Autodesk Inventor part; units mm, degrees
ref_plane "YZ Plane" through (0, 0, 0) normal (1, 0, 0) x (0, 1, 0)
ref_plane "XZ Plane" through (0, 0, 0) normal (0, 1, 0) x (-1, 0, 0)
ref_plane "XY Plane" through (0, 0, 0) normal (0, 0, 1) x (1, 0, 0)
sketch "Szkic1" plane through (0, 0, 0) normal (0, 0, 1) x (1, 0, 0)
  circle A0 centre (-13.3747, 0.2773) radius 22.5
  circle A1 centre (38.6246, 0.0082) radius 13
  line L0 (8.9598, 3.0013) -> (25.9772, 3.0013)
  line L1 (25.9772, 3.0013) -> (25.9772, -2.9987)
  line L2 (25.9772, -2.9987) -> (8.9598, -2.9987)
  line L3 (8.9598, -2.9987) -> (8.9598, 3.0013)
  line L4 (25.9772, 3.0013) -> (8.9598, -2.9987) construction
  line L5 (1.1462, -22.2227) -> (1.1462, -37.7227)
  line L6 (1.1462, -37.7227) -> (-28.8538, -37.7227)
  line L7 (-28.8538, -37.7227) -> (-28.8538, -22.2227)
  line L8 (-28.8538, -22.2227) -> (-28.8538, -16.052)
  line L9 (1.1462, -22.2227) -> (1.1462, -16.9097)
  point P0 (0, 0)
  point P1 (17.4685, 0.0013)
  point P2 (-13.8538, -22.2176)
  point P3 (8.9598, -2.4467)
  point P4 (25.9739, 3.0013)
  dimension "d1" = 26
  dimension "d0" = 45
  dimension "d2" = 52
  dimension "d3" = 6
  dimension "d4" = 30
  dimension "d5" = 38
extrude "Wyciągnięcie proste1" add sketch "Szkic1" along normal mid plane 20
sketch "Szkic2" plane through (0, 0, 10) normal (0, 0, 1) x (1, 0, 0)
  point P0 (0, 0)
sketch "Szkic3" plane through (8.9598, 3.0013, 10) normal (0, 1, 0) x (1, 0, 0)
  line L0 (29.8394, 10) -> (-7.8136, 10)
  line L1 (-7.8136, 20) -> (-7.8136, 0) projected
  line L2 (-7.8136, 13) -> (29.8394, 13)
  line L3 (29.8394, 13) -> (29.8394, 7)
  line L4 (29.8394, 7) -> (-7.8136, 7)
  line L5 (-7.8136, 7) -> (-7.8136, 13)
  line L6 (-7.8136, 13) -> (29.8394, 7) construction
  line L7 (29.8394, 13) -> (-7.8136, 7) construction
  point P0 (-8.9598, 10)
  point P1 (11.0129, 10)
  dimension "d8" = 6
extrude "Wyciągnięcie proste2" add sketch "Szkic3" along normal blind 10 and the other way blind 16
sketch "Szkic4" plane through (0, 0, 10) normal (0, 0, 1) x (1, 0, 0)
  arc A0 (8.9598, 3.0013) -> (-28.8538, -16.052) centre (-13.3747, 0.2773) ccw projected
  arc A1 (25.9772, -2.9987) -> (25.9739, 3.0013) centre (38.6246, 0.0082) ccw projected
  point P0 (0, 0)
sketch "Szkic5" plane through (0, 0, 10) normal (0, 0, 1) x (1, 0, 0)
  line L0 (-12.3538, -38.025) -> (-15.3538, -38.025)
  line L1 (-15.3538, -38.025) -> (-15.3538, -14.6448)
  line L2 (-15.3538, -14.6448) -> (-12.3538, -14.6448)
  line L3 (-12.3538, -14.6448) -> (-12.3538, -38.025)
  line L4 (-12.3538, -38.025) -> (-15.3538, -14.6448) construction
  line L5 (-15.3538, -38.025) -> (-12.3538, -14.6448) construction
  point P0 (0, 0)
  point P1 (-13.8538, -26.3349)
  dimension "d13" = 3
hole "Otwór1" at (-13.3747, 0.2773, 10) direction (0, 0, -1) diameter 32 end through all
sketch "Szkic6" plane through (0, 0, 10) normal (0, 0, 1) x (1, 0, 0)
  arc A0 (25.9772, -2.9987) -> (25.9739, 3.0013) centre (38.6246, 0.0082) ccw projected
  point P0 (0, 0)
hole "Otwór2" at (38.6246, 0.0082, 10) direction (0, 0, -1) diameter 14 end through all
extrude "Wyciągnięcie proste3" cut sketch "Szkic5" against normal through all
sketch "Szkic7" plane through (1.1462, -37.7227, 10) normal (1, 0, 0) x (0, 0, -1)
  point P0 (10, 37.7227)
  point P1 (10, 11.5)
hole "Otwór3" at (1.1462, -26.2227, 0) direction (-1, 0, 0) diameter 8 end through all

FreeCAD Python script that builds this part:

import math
import FreeCAD as App
import Part
import Sketcher
from FreeCAD import Vector
Q = App.Units.Quantity


def add_polygon(sketch, points):
    """Adds a closed chain of lines whose ends are joined by coincident constraints."""
    first, n = sketch.GeometryCount, len(points)
    for a, b in zip(points, points[1:] + points[:1]):
        sketch.addGeometry(Part.LineSegment(App.Vector(*a, 0), App.Vector(*b, 0)), False)
    for i in range(n):
        sketch.addConstraint(Sketcher.Constraint("Coincident", first + i, 2, first + (i + 1) % n, 1))

doc = App.newDocument("Part")
body = doc.addObject("PartDesign::Body", "Body")

sketch1 = doc.addObject("Sketcher::SketchObject", "Sketch")
body.addObject(sketch1)
sketch1.AttachmentSupport = (doc.XY_Plane, [""])
sketch1.MapMode = "FlatFace"
sketch1.addGeometry(Part.LineSegment(Vector(9, -2.4, 0), Vector(9, -3, 0)), False)
sketch1.addGeometry(Part.LineSegment(Vector(9, -3, 0), Vector(26, -3, 0)), False)
sketch1.addGeometry(Part.ArcOfCircle(Part.Circle(Vector(38.6, 0, 0), Vector(0, 0, 1), 13), math.radians(-167), math.radians(167)), False)
sketch1.addGeometry(Part.LineSegment(Vector(26, 3, 0), Vector(9, 3, 0)), False)
sketch1.addGeometry(Part.ArcOfCircle(Part.Circle(Vector(-13.4, 0.3, 0), Vector(0, 0, 1), 22.5), math.radians(7), math.radians(227)), False)
sketch1.addGeometry(Part.LineSegment(Vector(-28.9, -16.1, 0), Vector(-28.9, -37.7, 0)), False)
sketch1.addGeometry(Part.LineSegment(Vector(-28.9, -37.7, 0), Vector(1.1, -37.7, 0)), False)
sketch1.addGeometry(Part.LineSegment(Vector(1.1, -37.7, 0), Vector(1.1, -16.9, 0)), False)
sketch1.addGeometry(Part.ArcOfCircle(Part.Circle(Vector(-13.4, 0.3, 0), Vector(0, 0, 1), 22.5), math.radians(-50), math.radians(-7)), False)
sketch1.addConstraint(Sketcher.Constraint("Coincident", 0, 2, 1, 1))
sketch1.addConstraint(Sketcher.Constraint("Coincident", 1, 2, 2, 1))
sketch1.addConstraint(Sketcher.Constraint("Coincident", 2, 2, 3, 1))
sketch1.addConstraint(Sketcher.Constraint("Coincident", 3, 2, 4, 1))
sketch1.addConstraint(Sketcher.Constraint("Coincident", 4, 2, 5, 1))
sketch1.addConstraint(Sketcher.Constraint("Coincident", 5, 2, 6, 1))
sketch1.addConstraint(Sketcher.Constraint("Coincident", 6, 2, 7, 1))
sketch1.addConstraint(Sketcher.Constraint("Coincident", 7, 2, 8, 1))
sketch1.addConstraint(Sketcher.Constraint("Coincident", 8, 2, 0, 1))
sketch1.addConstraint(Sketcher.Constraint("Vertical", 0))
sketch1.addConstraint(Sketcher.Constraint("Horizontal", 1))
sketch1.addConstraint(Sketcher.Constraint("Horizontal", 3))
sketch1.addConstraint(Sketcher.Constraint("Vertical", 5))
sketch1.addConstraint(Sketcher.Constraint("Horizontal", 6))
sketch1.addConstraint(Sketcher.Constraint("Vertical", 7))
sketch1.addConstraint(Sketcher.Constraint("Coincident", 8, 3, 4, 3))
sketch1.addConstraint(Sketcher.Constraint("Equal", 4, 8))
sketch1.addConstraint(Sketcher.Constraint("Vertical", 0, 2, 3, 2))
sketch1.addConstraint(Sketcher.Constraint("Radius", 2, Q("13 mm")))
sketch1.addConstraint(Sketcher.Constraint("Radius", 4, Q("22.5 mm")))
sketch1.addConstraint(Sketcher.Constraint("DistanceX", 6, 1, 6, 2, Q("30 mm")))
sketch1.addConstraint(Sketcher.Constraint("DistanceY", 1, 2, 2, 2, Q("6 mm")))
sketch1.addConstraint(Sketcher.Constraint("DistanceY", 5, 2, 4, 3, Q("38 mm")))
sketch1.addConstraint(Sketcher.Constraint("DistanceX", 3, 2, 3, 1, Q("17.014 mm")))
sketch1.addConstraint(Sketcher.Constraint("DistanceY", 0, 2, 0, 1, Q("0.552 mm")))
sketch1.addConstraint(Sketcher.Constraint("DistanceY", 7, 1, 7, 2, Q("20.813 mm")))
sketch1.addConstraint(Sketcher.Constraint("DistanceX", 1, 1, 1, 2, Q("17.0174 mm")))
sketch1.addConstraint(Sketcher.Constraint("DistanceY", 4, 2, -1, 1, Q("16.052 mm")))
sketch1.addConstraint(Sketcher.Constraint("DistanceX", -1, 1, 2, 3, Q("38.6246 mm")))
pad1 = doc.addObject("PartDesign::Pad", "Pad")
body.addObject(pad1)
pad1.Profile = sketch1
pad1.Length = 20
pad1.Midplane = True

sketch2 = doc.addObject("Sketcher::SketchObject", "Sketch001")
body.addObject(sketch2)
sketch2.AttachmentSupport = (doc.XZ_Plane, [""])
sketch2.MapMode = "FlatFace"
sketch2.AttachmentOffset = App.Placement(Vector(0, 0, -3.0013), App.Rotation())
add_polygon(sketch2, [(39, 3), (39, -3), (1, -3), (1, 3)])
sketch2.addConstraint(Sketcher.Constraint("Vertical", 0))
sketch2.addConstraint(Sketcher.Constraint("Horizontal", 1))
sketch2.addConstraint(Sketcher.Constraint("Vertical", 2))
sketch2.addConstraint(Sketcher.Constraint("Horizontal", 3))
sketch2.addConstraint(Sketcher.Constraint("DistanceY", 0, 2, 0, 1, Q("6 mm")))
sketch2.addConstraint(Sketcher.Constraint("DistanceY", 0, 2, -1, 1, Q("3 mm")))
sketch2.addConstraint(Sketcher.Constraint("DistanceX", 1, 2, 1, 1, Q("37.653 mm")))
sketch2.addConstraint(Sketcher.Constraint("DistanceX", -1, 1, 0, 2, Q("38.7992 mm")))
pad2 = doc.addObject("PartDesign::Pad", "Pad001")
body.addObject(pad2)
pad2.Profile = sketch2
pad2.Type = "TwoLengths"
pad2.Length = 10
pad2.Length2 = 16
pad2.Reversed = True

sketch3 = doc.addObject("Sketcher::SketchObject", "Sketch002")
body.addObject(sketch3)
sketch3.AttachmentSupport = (doc.XY_Plane, [""])
sketch3.MapMode = "FlatFace"
sketch3.AttachmentOffset = App.Placement(Vector(0, 0, 10), App.Rotation())
sketch3.addGeometry(Part.Circle(Vector(-13, 0, 0), Vector(0, 0, 1), 16), False)
sketch3.addConstraint(Sketcher.Constraint("Diameter", 0, Q("32 mm")))
sketch3.addConstraint(Sketcher.Constraint("DistanceX", 0, 3, -1, 1, Q("13.3747 mm")))
sketch3.addConstraint(Sketcher.Constraint("DistanceY", -1, 1, 0, 3, Q("0.2773 mm")))
doc.recompute()
hole = doc.addObject("PartDesign::Hole", "Hole")
body.addObject(hole)
hole.Profile = sketch3
hole.ThreadType = "None"
hole.Diameter = 32
hole.DepthType = "ThroughAll"

sketch4 = doc.addObject("Sketcher::SketchObject", "Sketch003")
body.addObject(sketch4)
sketch4.AttachmentSupport = (doc.XY_Plane, [""])
sketch4.MapMode = "FlatFace"
sketch4.AttachmentOffset = App.Placement(Vector(0, 0, 10), App.Rotation())
sketch4.addGeometry(Part.Circle(Vector(39, 0, 0), Vector(0, 0, 1), 7), False)
sketch4.addConstraint(Sketcher.Constraint("Diameter", 0, Q("14 mm")))
sketch4.addConstraint(Sketcher.Constraint("DistanceX", -1, 1, 0, 3, Q("38.6246 mm")))
sketch4.addConstraint(Sketcher.Constraint("DistanceY", -1, 1, 0, 3, Q("0.0082 mm")))
doc.recompute()
hole2 = doc.addObject("PartDesign::Hole", "Hole001")
body.addObject(hole2)
hole2.Profile = sketch4
hole2.ThreadType = "None"
hole2.Diameter = 14
hole2.DepthType = "ThroughAll"

sketch5 = doc.addObject("Sketcher::SketchObject", "Sketch004")
body.addObject(sketch5)
sketch5.AttachmentSupport = (doc.XY_Plane, [""])
sketch5.MapMode = "FlatFace"
sketch5.AttachmentOffset = App.Placement(Vector(0, 0, 10), App.Rotation())
add_polygon(sketch5, [(-15.4, -38), (-12.4, -38), (-12.4, -14.6), (-15.4, -14.6)])
sketch5.addConstraint(Sketcher.Constraint("Horizontal", 0))
sketch5.addConstraint(Sketcher.Constraint("Vertical", 1))
sketch5.addConstraint(Sketcher.Constraint("Horizontal", 2))
sketch5.addConstraint(Sketcher.Constraint("Vertical", 3))
sketch5.addConstraint(Sketcher.Constraint("DistanceX", 0, 1, 0, 2, Q("3 mm")))
sketch5.addConstraint(Sketcher.Constraint("DistanceY", 1, 1, 1, 2, Q("23.3802 mm")))
sketch5.addConstraint(Sketcher.Constraint("DistanceY", 0, 2, -1, 1, Q("38.025 mm")))
sketch5.addConstraint(Sketcher.Constraint("DistanceX", 0, 2, -1, 1, Q("12.3538 mm")))
pocket1 = doc.addObject("PartDesign::Pocket", "Pocket")
body.addObject(pocket1)
pocket1.Profile = sketch5
pocket1.Type = "ThroughAll"

sketch6 = doc.addObject("Sketcher::SketchObject", "Sketch005")
body.addObject(sketch6)
sketch6.AttachmentSupport = (doc.YZ_Plane, [""])
sketch6.MapMode = "FlatFace"
sketch6.AttachmentOffset = App.Placement(Vector(0, 0, 1.1462), App.Rotation())
sketch6.addGeometry(Part.Circle(Vector(-26.2, 0, 0), Vector(0, 0, 1), 4), False)
sketch6.addConstraint(Sketcher.Constraint("PointOnObject", 0, 3, -1))
sketch6.addConstraint(Sketcher.Constraint("Diameter", 0, Q("8 mm")))
sketch6.addConstraint(Sketcher.Constraint("DistanceX", 0, 3, -1, 1, Q("26.2227 mm")))
doc.recompute()
hole3 = doc.addObject("PartDesign::Hole", "Hole002")
body.addObject(hole3)
hole3.Profile = sketch6
hole3.ThreadType = "None"
hole3.Diameter = 8
hole3.DepthType = "ThroughAll"

doc.recompute()
